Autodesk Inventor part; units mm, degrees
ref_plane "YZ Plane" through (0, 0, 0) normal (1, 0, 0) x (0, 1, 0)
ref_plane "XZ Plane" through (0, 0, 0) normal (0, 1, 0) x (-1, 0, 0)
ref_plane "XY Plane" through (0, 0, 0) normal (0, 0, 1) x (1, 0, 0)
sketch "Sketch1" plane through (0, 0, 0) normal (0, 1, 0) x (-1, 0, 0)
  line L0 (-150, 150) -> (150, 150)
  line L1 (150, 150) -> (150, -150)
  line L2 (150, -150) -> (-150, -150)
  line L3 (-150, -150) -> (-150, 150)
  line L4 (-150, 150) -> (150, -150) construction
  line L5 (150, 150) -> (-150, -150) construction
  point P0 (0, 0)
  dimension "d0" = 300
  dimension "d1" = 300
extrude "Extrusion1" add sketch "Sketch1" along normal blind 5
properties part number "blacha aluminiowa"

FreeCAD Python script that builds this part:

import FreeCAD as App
import Part
import Sketcher
Q = App.Units.Quantity

doc = App.newDocument("Part")
body = doc.addObject("PartDesign::Body", "Body")

# Sketch on XZ plane
sketch1 = body.newObject("Sketcher::SketchObject", "Sketch")
sketch1.AttachmentSupport = (doc.getObject("XZ_Plane"), [""])
sketch1.MapMode = "FlatFace"
sketch1.addGeometry([
    Part.LineSegment(App.Vector(-150, 150, 0), App.Vector(150, 150, 0)),
    Part.LineSegment(App.Vector(150, 150, 0), App.Vector(150, -150, 0)),
    Part.LineSegment(App.Vector(150, -150, 0), App.Vector(-150, -150, 0)),
    Part.LineSegment(App.Vector(-150, -150, 0), App.Vector(-150, 150, 0)),
], False)
sketch1.addConstraint([
    Sketcher.Constraint("Coincident", 0, 2, 1, 1),
    Sketcher.Constraint("Coincident", 1, 2, 2, 1),
    Sketcher.Constraint("Coincident", 2, 2, 3, 1),
    Sketcher.Constraint("Coincident", 3, 2, 0, 1),
    Sketcher.Constraint("Horizontal", 0),
    Sketcher.Constraint("Vertical", 1),
    Sketcher.Constraint("Horizontal", 2),
    Sketcher.Constraint("Vertical", 3),
    Sketcher.Constraint("Symmetric", 0, 2, 2, 2, -1, 1),
    Sketcher.Constraint("Equal", 2, 1),
    Sketcher.Constraint("DistanceX", 0, 1, 0, 2, Q("300 mm")),
])
pad1 = body.newObject("PartDesign::Pad", "Pad")
pad1.Profile = sketch1
pad1.Length = 5
pad1.Reversed = True

doc.recompute()
